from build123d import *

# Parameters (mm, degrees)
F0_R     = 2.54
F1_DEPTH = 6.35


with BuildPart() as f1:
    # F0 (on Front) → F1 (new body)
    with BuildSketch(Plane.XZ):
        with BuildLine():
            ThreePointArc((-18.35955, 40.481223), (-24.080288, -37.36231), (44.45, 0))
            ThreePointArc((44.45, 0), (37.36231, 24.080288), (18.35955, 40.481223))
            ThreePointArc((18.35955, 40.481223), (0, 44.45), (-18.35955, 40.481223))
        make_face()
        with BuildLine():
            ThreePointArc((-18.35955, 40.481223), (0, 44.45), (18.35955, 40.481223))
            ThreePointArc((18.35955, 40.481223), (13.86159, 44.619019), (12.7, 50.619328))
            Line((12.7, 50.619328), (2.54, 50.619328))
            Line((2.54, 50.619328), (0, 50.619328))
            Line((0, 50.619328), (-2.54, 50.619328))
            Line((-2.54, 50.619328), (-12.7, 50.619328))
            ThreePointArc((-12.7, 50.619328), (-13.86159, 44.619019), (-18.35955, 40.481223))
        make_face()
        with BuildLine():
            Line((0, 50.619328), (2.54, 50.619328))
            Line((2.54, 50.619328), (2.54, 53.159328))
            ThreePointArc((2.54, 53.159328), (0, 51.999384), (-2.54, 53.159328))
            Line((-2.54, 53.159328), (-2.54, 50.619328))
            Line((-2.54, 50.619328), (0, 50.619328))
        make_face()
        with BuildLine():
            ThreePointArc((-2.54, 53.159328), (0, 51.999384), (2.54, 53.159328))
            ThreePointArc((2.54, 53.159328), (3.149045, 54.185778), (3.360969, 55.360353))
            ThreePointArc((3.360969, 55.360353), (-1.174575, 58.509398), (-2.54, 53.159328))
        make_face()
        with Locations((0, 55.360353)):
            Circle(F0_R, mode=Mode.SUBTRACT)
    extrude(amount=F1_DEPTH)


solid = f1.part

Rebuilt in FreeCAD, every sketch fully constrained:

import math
import FreeCAD as App
import Part
import Sketcher
from FreeCAD import Vector
Q = App.Units.Quantity

doc = App.newDocument("Part")
body = doc.addObject("PartDesign::Body", "Body")

sketch1 = body.newObject("Sketcher::SketchObject", "Sketch")
sketch1.AttachmentSupport = (doc.getObject("XZ_Plane"), [""])
sketch1.MapMode = "FlatFace"
sketch1.addGeometry([
    Part.ArcOfCircle(Part.Circle(Vector(0, 0, 0), Vector(0, 0, 1), 44.4), math.radians(114), math.radians(360)),
    Part.ArcOfCircle(Part.Circle(Vector(0, 0, 0), Vector(0, 0, 1), 44.5), math.radians(0), math.radians(66)),
    Part.ArcOfCircle(Part.Circle(Vector(22.4, 49.4, 0), Vector(0, 0, 1), 9.8), math.radians(173), math.radians(246)),
    Part.LineSegment(Vector(12.7, 50.6, 0), Vector(2.5, 50.6, 0)),
    Part.LineSegment(Vector(2.5, 50.6, 0), Vector(2.5, 53.2, 0)),
    Part.ArcOfCircle(Part.Circle(Vector(0, 55.4, 0), Vector(0, 0, 1), 3.4), math.radians(-41), math.radians(0)),
    Part.ArcOfCircle(Part.Circle(Vector(0, 55.4, 0), Vector(0, 0, 1), 3.4), math.radians(0), math.radians(221)),
    Part.LineSegment(Vector(-2.5, 53.2, 0), Vector(-2.5, 50.6, 0)),
    Part.LineSegment(Vector(-2.5, 50.6, 0), Vector(-12.7, 50.6, 0)),
    Part.ArcOfCircle(Part.Circle(Vector(-22.4, 49.4, 0), Vector(0, 0, 1), 9.8), math.radians(-66), math.radians(7)),
    Part.Circle(Vector(0, 55.4, 0), Vector(0, 0, 1), 2.5),
], False)
sketch1.addConstraint([
    Sketcher.Constraint("Tangent", 0, 2, 1, 1),
    Sketcher.Constraint("Tangent", 1, 2, 2, 2),
    Sketcher.Constraint("Coincident", 2, 1, 3, 1),
    Sketcher.Constraint("Coincident", 3, 2, 4, 1),
    Sketcher.Constraint("Coincident", 4, 2, 5, 1),
    Sketcher.Constraint("Tangent", 5, 2, 6, 1),
    Sketcher.Constraint("Coincident", 6, 2, 7, 1),
    Sketcher.Constraint("Coincident", 7, 2, 8, 1),
    Sketcher.Constraint("Coincident", 8, 2, 9, 2),
    Sketcher.Constraint("Tangent", 9, 1, 0, 1),
    Sketcher.Constraint("Horizontal", 3),
    Sketcher.Constraint("Vertical", 4),
    Sketcher.Constraint("Vertical", 7),
    Sketcher.Constraint("Horizontal", 8),
    Sketcher.Constraint("Coincident", 0, 3, -1, 1),
    Sketcher.Constraint("Coincident", 10, 3, 5, 3),
    Sketcher.Constraint("Equal", 0, 1),
    Sketcher.Constraint("Equal", 2, 9),
    Sketcher.Constraint("Symmetric", 4, 2, 6, 2, -2),
    Sketcher.Constraint("Symmetric", 2, 1, 8, 2, -2),
    Sketcher.Constraint("PointOnObject", 6, 3, -2),
    Sketcher.Constraint("PointOnObject", 0, 2, -1),
    Sketcher.Constraint("Horizontal", 10, 3, 5, 2),
    Sketcher.Constraint("Diameter", 10, Q("0.2 in")),
    Sketcher.Constraint("Radius", 0, Q("1.75 in")),
    Sketcher.Constraint("DistanceX", 3, 2, 3, 1, Q("0.4 in")),
    Sketcher.Constraint("DistanceY", 4, 1, 4, 2, Q("0.1 in")),
    Sketcher.Constraint("DistanceX", -1, 1, 2, 1, Q("0.5 in")),
    Sketcher.Constraint("Radius", 2, Q("9.77562 mm")),
    Sketcher.Constraint("Radius", 5, Q("3.360971 mm")),
    Sketcher.Constraint("DistanceY", -1, 1, 2, 1, Q("50.619328 mm")),
])
pad1 = body.newObject("PartDesign::Pad", "Pad")
pad1.Profile = sketch1
pad1.Length = Q("0.25 in")

doc.recompute()
